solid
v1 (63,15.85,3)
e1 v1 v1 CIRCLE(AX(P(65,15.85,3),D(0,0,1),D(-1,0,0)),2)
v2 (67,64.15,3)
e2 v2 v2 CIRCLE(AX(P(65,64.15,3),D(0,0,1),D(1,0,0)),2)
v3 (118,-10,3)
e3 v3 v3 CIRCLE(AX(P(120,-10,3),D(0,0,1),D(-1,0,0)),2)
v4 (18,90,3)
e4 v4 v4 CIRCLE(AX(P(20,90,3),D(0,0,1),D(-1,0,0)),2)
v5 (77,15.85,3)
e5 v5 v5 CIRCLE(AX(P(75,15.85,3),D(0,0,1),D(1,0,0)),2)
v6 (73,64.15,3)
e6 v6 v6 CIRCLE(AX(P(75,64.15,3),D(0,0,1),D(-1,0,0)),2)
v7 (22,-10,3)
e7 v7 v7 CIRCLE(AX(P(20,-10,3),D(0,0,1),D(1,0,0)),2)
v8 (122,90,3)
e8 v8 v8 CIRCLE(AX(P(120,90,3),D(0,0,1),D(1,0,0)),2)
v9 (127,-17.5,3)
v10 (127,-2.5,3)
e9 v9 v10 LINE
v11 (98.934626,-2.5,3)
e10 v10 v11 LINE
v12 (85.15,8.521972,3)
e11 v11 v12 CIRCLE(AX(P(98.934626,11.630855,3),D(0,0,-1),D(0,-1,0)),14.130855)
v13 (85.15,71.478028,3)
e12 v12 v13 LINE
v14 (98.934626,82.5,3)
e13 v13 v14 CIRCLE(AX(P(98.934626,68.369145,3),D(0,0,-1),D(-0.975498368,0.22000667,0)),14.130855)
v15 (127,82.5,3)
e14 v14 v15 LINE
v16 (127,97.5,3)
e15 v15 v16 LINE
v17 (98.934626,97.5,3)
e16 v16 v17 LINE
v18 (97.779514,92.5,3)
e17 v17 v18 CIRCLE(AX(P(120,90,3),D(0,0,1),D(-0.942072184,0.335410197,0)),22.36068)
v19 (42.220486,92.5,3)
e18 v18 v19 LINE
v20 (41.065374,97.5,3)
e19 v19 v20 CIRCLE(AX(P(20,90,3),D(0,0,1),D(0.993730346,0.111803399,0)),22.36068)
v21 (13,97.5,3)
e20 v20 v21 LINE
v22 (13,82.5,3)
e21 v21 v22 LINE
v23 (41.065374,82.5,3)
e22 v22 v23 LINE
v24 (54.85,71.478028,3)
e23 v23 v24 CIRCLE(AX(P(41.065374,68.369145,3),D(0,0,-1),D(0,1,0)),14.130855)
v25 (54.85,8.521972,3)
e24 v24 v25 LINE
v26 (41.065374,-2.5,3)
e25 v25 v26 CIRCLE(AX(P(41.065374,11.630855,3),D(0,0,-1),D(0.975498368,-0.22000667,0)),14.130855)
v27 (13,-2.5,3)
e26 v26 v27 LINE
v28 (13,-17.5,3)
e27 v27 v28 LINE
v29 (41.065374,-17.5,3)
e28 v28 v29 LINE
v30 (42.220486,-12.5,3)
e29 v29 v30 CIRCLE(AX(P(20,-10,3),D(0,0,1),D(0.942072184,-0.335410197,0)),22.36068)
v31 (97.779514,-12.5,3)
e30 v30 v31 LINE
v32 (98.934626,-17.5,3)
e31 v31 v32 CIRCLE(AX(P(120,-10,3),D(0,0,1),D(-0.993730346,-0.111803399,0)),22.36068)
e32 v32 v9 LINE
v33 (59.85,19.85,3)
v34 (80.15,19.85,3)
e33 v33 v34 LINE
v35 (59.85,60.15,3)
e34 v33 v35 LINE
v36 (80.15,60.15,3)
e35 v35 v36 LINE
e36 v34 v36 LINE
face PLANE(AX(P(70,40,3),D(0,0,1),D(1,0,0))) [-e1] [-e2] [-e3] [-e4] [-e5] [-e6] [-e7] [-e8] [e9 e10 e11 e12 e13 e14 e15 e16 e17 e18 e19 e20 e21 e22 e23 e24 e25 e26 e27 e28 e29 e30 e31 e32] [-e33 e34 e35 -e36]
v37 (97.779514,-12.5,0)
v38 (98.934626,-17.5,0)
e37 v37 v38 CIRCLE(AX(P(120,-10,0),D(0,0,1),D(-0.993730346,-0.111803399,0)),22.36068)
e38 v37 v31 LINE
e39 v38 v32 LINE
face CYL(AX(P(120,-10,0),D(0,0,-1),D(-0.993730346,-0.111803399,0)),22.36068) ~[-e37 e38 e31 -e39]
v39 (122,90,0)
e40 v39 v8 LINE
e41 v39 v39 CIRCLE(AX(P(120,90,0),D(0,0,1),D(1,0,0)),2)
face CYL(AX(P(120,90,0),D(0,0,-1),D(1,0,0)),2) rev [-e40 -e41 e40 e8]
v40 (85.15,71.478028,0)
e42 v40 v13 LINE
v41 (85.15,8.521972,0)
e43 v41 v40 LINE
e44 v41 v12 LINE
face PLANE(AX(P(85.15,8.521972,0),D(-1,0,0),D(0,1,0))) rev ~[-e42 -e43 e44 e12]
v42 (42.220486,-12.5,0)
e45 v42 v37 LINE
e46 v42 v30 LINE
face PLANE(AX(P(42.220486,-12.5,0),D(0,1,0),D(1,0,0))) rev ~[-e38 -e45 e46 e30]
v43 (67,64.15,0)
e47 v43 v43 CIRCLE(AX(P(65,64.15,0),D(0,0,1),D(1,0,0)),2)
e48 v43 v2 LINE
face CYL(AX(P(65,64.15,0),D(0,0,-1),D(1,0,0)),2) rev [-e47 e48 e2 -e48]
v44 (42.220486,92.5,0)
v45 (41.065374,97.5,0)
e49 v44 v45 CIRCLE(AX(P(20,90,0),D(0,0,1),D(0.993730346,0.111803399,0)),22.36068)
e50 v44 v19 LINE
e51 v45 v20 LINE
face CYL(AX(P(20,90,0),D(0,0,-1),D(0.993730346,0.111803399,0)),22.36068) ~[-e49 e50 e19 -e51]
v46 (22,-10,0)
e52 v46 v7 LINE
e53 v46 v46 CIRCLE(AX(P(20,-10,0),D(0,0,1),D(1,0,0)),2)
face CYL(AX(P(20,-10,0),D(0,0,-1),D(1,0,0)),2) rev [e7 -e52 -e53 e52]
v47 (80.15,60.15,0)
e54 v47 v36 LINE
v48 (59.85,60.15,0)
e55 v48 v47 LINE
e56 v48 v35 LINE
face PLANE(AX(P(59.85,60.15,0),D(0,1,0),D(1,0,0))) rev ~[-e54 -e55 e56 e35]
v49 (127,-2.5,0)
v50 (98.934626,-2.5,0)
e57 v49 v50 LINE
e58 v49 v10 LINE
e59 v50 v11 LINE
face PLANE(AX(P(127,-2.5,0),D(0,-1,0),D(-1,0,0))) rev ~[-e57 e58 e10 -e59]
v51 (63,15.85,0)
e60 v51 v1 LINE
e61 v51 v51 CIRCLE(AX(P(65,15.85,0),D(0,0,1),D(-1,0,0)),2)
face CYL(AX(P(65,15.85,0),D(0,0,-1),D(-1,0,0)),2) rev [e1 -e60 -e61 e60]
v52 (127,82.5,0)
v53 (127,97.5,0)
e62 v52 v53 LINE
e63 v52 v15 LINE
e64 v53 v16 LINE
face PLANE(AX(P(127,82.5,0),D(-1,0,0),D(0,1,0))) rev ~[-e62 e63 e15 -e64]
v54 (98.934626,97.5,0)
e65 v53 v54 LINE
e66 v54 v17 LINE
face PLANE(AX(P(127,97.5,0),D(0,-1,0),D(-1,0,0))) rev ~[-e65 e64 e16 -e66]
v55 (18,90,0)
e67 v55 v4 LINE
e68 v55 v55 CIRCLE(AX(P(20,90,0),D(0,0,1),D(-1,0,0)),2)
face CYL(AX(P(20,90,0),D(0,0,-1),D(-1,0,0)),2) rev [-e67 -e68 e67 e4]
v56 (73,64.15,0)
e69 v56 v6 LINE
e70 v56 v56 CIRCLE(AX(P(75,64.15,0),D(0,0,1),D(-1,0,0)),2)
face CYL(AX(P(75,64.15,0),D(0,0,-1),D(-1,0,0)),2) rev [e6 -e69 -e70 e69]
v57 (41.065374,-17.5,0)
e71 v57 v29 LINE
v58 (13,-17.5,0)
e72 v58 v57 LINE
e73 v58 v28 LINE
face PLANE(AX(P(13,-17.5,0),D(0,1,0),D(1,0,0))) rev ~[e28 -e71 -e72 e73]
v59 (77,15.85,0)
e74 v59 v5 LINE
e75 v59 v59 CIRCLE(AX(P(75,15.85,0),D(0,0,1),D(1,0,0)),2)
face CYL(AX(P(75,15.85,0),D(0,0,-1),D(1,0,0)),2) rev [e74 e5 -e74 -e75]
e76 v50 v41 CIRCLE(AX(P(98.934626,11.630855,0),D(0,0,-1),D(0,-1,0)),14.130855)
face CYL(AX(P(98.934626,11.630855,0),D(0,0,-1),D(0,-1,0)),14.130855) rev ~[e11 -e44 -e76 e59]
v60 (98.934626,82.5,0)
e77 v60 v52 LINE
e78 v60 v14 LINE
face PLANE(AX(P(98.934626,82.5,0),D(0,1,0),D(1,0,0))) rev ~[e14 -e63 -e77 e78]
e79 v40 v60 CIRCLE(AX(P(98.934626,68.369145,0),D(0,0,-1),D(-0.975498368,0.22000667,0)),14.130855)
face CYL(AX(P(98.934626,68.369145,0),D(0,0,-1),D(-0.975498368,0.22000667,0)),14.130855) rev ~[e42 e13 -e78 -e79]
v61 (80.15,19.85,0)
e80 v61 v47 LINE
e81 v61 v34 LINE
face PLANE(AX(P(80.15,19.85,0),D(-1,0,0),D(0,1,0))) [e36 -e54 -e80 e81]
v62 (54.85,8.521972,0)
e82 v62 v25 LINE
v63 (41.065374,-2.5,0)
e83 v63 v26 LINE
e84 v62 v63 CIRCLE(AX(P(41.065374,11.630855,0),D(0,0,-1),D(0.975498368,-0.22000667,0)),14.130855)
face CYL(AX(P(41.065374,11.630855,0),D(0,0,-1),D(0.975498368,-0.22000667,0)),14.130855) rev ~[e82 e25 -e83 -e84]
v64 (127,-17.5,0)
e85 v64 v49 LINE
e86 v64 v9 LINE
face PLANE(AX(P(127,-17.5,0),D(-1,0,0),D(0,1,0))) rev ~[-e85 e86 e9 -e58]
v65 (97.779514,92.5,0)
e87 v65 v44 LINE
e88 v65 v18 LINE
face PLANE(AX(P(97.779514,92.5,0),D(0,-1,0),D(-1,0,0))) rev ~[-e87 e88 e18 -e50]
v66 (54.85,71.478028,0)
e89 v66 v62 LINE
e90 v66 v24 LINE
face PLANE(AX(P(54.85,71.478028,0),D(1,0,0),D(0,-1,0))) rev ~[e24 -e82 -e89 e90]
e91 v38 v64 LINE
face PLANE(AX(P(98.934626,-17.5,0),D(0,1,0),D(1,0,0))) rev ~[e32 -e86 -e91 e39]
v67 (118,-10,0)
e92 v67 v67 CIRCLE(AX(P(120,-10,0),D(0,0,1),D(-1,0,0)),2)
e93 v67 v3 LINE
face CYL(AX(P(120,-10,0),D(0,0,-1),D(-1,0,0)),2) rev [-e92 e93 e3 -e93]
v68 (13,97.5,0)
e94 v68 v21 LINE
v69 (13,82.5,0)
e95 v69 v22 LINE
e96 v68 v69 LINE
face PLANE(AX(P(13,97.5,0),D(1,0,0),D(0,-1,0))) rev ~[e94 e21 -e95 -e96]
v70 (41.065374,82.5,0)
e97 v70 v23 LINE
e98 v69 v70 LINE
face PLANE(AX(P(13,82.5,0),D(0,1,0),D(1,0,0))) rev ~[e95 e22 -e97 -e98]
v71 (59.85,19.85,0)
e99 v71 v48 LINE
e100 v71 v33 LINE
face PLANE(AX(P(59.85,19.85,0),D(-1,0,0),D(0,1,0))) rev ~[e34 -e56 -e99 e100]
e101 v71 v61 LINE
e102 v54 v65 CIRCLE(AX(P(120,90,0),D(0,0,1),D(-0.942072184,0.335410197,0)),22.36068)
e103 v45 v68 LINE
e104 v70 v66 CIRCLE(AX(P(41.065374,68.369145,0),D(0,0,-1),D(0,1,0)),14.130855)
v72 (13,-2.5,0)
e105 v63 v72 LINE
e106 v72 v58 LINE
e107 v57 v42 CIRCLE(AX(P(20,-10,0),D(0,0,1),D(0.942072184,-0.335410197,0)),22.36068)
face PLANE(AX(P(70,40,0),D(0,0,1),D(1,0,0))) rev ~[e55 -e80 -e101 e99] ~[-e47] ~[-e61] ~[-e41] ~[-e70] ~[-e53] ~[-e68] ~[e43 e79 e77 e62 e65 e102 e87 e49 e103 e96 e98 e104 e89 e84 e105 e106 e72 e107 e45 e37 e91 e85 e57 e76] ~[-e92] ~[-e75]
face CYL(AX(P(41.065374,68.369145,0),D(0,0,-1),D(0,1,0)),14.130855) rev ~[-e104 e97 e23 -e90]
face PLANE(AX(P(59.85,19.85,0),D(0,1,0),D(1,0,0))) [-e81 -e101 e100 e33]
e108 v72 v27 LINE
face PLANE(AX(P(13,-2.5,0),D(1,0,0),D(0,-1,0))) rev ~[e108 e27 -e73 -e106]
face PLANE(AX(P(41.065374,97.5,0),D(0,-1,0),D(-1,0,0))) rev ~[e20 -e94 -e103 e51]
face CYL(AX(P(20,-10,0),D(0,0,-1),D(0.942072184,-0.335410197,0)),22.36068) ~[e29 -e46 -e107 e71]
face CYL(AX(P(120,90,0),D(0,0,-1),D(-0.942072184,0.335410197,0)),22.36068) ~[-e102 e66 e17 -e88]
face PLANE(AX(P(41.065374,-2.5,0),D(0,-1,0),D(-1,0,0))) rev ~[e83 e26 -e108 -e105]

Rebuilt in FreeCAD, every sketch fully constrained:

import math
import FreeCAD as App
import Part
import Sketcher
Q = App.Units.Quantity

doc = App.newDocument("Part")
body = doc.addObject("PartDesign::Body", "Body")

# Sketch on XY plane
sketch1 = body.newObject("Sketcher::SketchObject", "Sketch")
sketch1.AttachmentSupport = (doc.getObject("XY_Plane"), [""])
sketch1.MapMode = "FlatFace"
sketch1.addGeometry(Part.LineSegment(App.Vector(54.85, 71.478028, 0), App.Vector(54.85, 8.521972, 0)), False)
sketch1.addGeometry(Part.ArcOfCircle(Part.Circle(App.Vector(41.065374, 11.630855, 0), App.Vector(0, 0, 1), 14.130855), math.radians(-90), math.radians(-12.709425)), False)
sketch1.addGeometry(Part.LineSegment(App.Vector(41.065374, -2.5, 0), App.Vector(13, -2.5, 0)), False)
sketch1.addGeometry(Part.LineSegment(App.Vector(13, -2.5, 0), App.Vector(13, -17.5, 0)), False)
sketch1.addGeometry(Part.LineSegment(App.Vector(13, -17.5, 0), App.Vector(41.065374, -17.5, 0)), False)
sketch1.addGeometry(Part.ArcOfCircle(Part.Circle(App.Vector(20, -10, 0), App.Vector(0, 0, 1), 22.36068), math.radians(-19.597484), math.radians(-6.419284)), False)
sketch1.addGeometry(Part.LineSegment(App.Vector(42.220486, -12.5, 0), App.Vector(97.779514, -12.5, 0)), False)
sketch1.addGeometry(Part.ArcOfCircle(Part.Circle(App.Vector(120, -10, 0), App.Vector(0, 0, 1), 22.36068), math.radians(-173.580716), math.radians(-160.402516)), False)
sketch1.addGeometry(Part.LineSegment(App.Vector(98.934626, -17.5, 0), App.Vector(127, -17.5, 0)), False)
sketch1.addGeometry(Part.LineSegment(App.Vector(127, -17.5, 0), App.Vector(127, -2.5, 0)), False)
sketch1.addGeometry(Part.LineSegment(App.Vector(127, -2.5, 0), App.Vector(98.934626, -2.5, 0)), False)
sketch1.addGeometry(Part.ArcOfCircle(Part.Circle(App.Vector(98.934626, 11.630855, 0), App.Vector(0, 0, 1), 14.130855), math.radians(-167.290575), math.radians(-90)), False)
sketch1.addGeometry(Part.LineSegment(App.Vector(85.15, 8.521972, 0), App.Vector(85.15, 71.478028, 0)), False)
sketch1.addGeometry(Part.ArcOfCircle(Part.Circle(App.Vector(98.934626, 68.369145, 0), App.Vector(0, 0, 1), 14.130855), math.radians(90), math.radians(167.290575)), False)
sketch1.addGeometry(Part.LineSegment(App.Vector(98.934626, 82.5, 0), App.Vector(127, 82.5, 0)), False)
sketch1.addGeometry(Part.LineSegment(App.Vector(127, 82.5, 0), App.Vector(127, 97.5, 0)), False)
sketch1.addGeometry(Part.LineSegment(App.Vector(127, 97.5, 0), App.Vector(98.934626, 97.5, 0)), False)
sketch1.addGeometry(Part.ArcOfCircle(Part.Circle(App.Vector(120, 90, 0), App.Vector(0, 0, 1), 22.36068), math.radians(160.402516), math.radians(173.580716)), False)
sketch1.addGeometry(Part.LineSegment(App.Vector(97.779514, 92.5, 0), App.Vector(42.220486, 92.5, 0)), False)
sketch1.addGeometry(Part.ArcOfCircle(Part.Circle(App.Vector(20, 90, 0), App.Vector(0, 0, 1), 22.36068), math.radians(6.419284), math.radians(19.597484)), False)
sketch1.addGeometry(Part.LineSegment(App.Vector(41.065374, 97.5, 0), App.Vector(13, 97.5, 0)), False)
sketch1.addGeometry(Part.LineSegment(App.Vector(13, 97.5, 0), App.Vector(13, 82.5, 0)), False)
sketch1.addGeometry(Part.LineSegment(App.Vector(13, 82.5, 0), App.Vector(41.065374, 82.5, 0)), False)
sketch1.addGeometry(Part.ArcOfCircle(Part.Circle(App.Vector(41.065374, 68.369145, 0), App.Vector(0, 0, 1), 14.130855), math.radians(12.709425), math.radians(90)), False)
sketch1.addGeometry(Part.Circle(App.Vector(20, -10, 0), App.Vector(0, 0, 1), 2), False)
sketch1.addGeometry(Part.Circle(App.Vector(65, 15.85, 0), App.Vector(0, 0, 1), 2), False)
sketch1.addGeometry(Part.Circle(App.Vector(120, -10, 0), App.Vector(0, 0, 1), 2), False)
sketch1.addGeometry(Part.Circle(App.Vector(75, 15.85, 0), App.Vector(0, 0, 1), 2), False)
sketch1.addGeometry(Part.Circle(App.Vector(65, 64.15, 0), App.Vector(0, 0, 1), 2), False)
sketch1.addGeometry(Part.Circle(App.Vector(20, 90, 0), App.Vector(0, 0, 1), 2), False)
sketch1.addGeometry(Part.LineSegment(App.Vector(80.15, 19.85, 0), App.Vector(59.85, 19.85, 0)), False)
sketch1.addGeometry(Part.LineSegment(App.Vector(59.85, 19.85, 0), App.Vector(59.85, 60.15, 0)), False)
sketch1.addGeometry(Part.LineSegment(App.Vector(59.85, 60.15, 0), App.Vector(80.15, 60.15, 0)), False)
sketch1.addGeometry(Part.LineSegment(App.Vector(80.15, 60.15, 0), App.Vector(80.15, 19.85, 0)), False)
sketch1.addGeometry(Part.Circle(App.Vector(75, 64.15, 0), App.Vector(0, 0, 1), 2), False)
sketch1.addGeometry(Part.Circle(App.Vector(120, 90, 0), App.Vector(0, 0, 1), 2), False)
sketch1.addConstraint(Sketcher.Constraint("Coincident", 0, 2, 1, 2))
sketch1.addConstraint(Sketcher.Constraint("Tangent", 1, 1, 2, 1))
sketch1.addConstraint(Sketcher.Constraint("Coincident", 2, 2, 3, 1))
sketch1.addConstraint(Sketcher.Constraint("Coincident", 3, 2, 4, 1))
sketch1.addConstraint(Sketcher.Constraint("Coincident", 4, 2, 5, 1))
sketch1.addConstraint(Sketcher.Constraint("Coincident", 5, 2, 6, 1))
sketch1.addConstraint(Sketcher.Constraint("Coincident", 6, 2, 7, 1))
sketch1.addConstraint(Sketcher.Constraint("Coincident", 7, 2, 8, 1))
sketch1.addConstraint(Sketcher.Constraint("Coincident", 8, 2, 9, 1))
sketch1.addConstraint(Sketcher.Constraint("Coincident", 9, 2, 10, 1))
sketch1.addConstraint(Sketcher.Constraint("Tangent", 10, 2, 11, 2))
sketch1.addConstraint(Sketcher.Constraint("Coincident", 11, 1, 12, 1))
sketch1.addConstraint(Sketcher.Constraint("Coincident", 12, 2, 13, 2))
sketch1.addConstraint(Sketcher.Constraint("Tangent", 13, 1, 14, 1))
sketch1.addConstraint(Sketcher.Constraint("Coincident", 14, 2, 15, 1))
sketch1.addConstraint(Sketcher.Constraint("Coincident", 15, 2, 16, 1))
sketch1.addConstraint(Sketcher.Constraint("Coincident", 16, 2, 17, 1))
sketch1.addConstraint(Sketcher.Constraint("Coincident", 17, 2, 18, 1))
sketch1.addConstraint(Sketcher.Constraint("Coincident", 18, 2, 19, 1))
sketch1.addConstraint(Sketcher.Constraint("Coincident", 19, 2, 20, 1))
sketch1.addConstraint(Sketcher.Constraint("Coincident", 20, 2, 21, 1))
sketch1.addConstraint(Sketcher.Constraint("Coincident", 21, 2, 22, 1))
sketch1.addConstraint(Sketcher.Constraint("Tangent", 22, 2, 23, 2))
sketch1.addConstraint(Sketcher.Constraint("Coincident", 23, 1, 0, 1))
sketch1.addConstraint(Sketcher.Constraint("Coincident", 30, 2, 31, 1))
sketch1.addConstraint(Sketcher.Constraint("Coincident", 31, 2, 32, 1))
sketch1.addConstraint(Sketcher.Constraint("Coincident", 32, 2, 33, 1))
sketch1.addConstraint(Sketcher.Constraint("Coincident", 33, 2, 30, 1))
sketch1.addConstraint(Sketcher.Constraint("Vertical", 0))
sketch1.addConstraint(Sketcher.Constraint("Horizontal", 2))
sketch1.addConstraint(Sketcher.Constraint("Vertical", 3))
sketch1.addConstraint(Sketcher.Constraint("Horizontal", 4))
sketch1.addConstraint(Sketcher.Constraint("Horizontal", 6))
sketch1.addConstraint(Sketcher.Constraint("Horizontal", 8))
sketch1.addConstraint(Sketcher.Constraint("Vertical", 9))
sketch1.addConstraint(Sketcher.Constraint("Horizontal", 10))
sketch1.addConstraint(Sketcher.Constraint("Vertical", 12))
sketch1.addConstraint(Sketcher.Constraint("Horizontal", 14))
sketch1.addConstraint(Sketcher.Constraint("Vertical", 15))
sketch1.addConstraint(Sketcher.Constraint("Horizontal", 16))
sketch1.addConstraint(Sketcher.Constraint("Horizontal", 18))
sketch1.addConstraint(Sketcher.Constraint("Horizontal", 20))
sketch1.addConstraint(Sketcher.Constraint("Vertical", 21))
sketch1.addConstraint(Sketcher.Constraint("Horizontal", 22))
sketch1.addConstraint(Sketcher.Constraint("Horizontal", 30))
sketch1.addConstraint(Sketcher.Constraint("Vertical", 31))
sketch1.addConstraint(Sketcher.Constraint("Horizontal", 32))
sketch1.addConstraint(Sketcher.Constraint("Vertical", 33))
sketch1.addConstraint(Sketcher.Constraint("Coincident", 24, 3, 5, 3))
sketch1.addConstraint(Sketcher.Constraint("Coincident", 26, 3, 7, 3))
sketch1.addConstraint(Sketcher.Constraint("Coincident", 29, 3, 19, 3))
sketch1.addConstraint(Sketcher.Constraint("Coincident", 35, 3, 17, 3))
sketch1.addConstraint(Sketcher.Constraint("Equal", 5, 7))
sketch1.addConstraint(Sketcher.Constraint("Equal", 1, 11))
sketch1.addConstraint(Sketcher.Constraint("Equal", 11, 13))
sketch1.addConstraint(Sketcher.Constraint("Equal", 7, 17))
sketch1.addConstraint(Sketcher.Constraint("Equal", 17, 19))
sketch1.addConstraint(Sketcher.Constraint("Equal", 13, 23))
sketch1.addConstraint(Sketcher.Constraint("Equal", 24, 25))
sketch1.addConstraint(Sketcher.Constraint("Equal", 25, 26))
sketch1.addConstraint(Sketcher.Constraint("Equal", 26, 27))
sketch1.addConstraint(Sketcher.Constraint("Equal", 27, 28))
sketch1.addConstraint(Sketcher.Constraint("Equal", 28, 29))
sketch1.addConstraint(Sketcher.Constraint("Equal", 29, 34))
sketch1.addConstraint(Sketcher.Constraint("Equal", 34, 35))
sketch1.addConstraint(Sketcher.Constraint("Horizontal", 5, 3, 7, 3))
sketch1.addConstraint(Sketcher.Constraint("Horizontal", 1, 3, 11, 3))
sketch1.addConstraint(Sketcher.Constraint("Horizontal", 17, 3, 19, 3))
sketch1.addConstraint(Sketcher.Constraint("Horizontal", 13, 3, 23, 3))
sketch1.addConstraint(Sketcher.Constraint("Horizontal", 25, 3, 27, 3))
sketch1.addConstraint(Sketcher.Constraint("Horizontal", 28, 3, 34, 3))
sketch1.addConstraint(Sketcher.Constraint("Horizontal", 4, 2, 7, 2))
sketch1.addConstraint(Sketcher.Constraint("Horizontal", 0, 2, 11, 1))
sketch1.addConstraint(Sketcher.Constraint("Horizontal", 16, 2, 19, 2))
sketch1.addConstraint(Sketcher.Constraint("Horizontal", 12, 2, 23, 1))
sketch1.addConstraint(Sketcher.Constraint("Vertical", 11, 3, 13, 3))
sketch1.addConstraint(Sketcher.Constraint("Vertical", 7, 3, 17, 3))
sketch1.addConstraint(Sketcher.Constraint("Vertical", 5, 3, 19, 3))
sketch1.addConstraint(Sketcher.Constraint("Vertical", 25, 3, 28, 3))
sketch1.addConstraint(Sketcher.Constraint("Vertical", 27, 3, 34, 3))
sketch1.addConstraint(Sketcher.Constraint("Vertical", 1, 1, 4, 2))
sketch1.addConstraint(Sketcher.Constraint("Vertical", 13, 3, 7, 2))
sketch1.addConstraint(Sketcher.Constraint("Vertical", 9, 2, 14, 2))
sketch1.addConstraint(Sketcher.Constraint("Vertical", 13, 1, 16, 2))
sketch1.addConstraint(Sketcher.Constraint("Vertical", 6, 2, 17, 2))
sketch1.addConstraint(Sketcher.Constraint("Vertical", 3, 2, 20, 2))
sketch1.addConstraint(Sketcher.Constraint("Equal", 4, 8))
sketch1.addConstraint(Sketcher.Constraint("Equal", 9, 15))
sketch1.addConstraint(Sketcher.Constraint("Diameter", 24, Q("4 mm")))
sketch1.addConstraint(Sketcher.Constraint("DistanceY", 3, 2, 3, 1, Q("15 mm")))
sketch1.addConstraint(Sketcher.Constraint("DistanceX", 30, 2, 30, 1, Q("20.3 mm")))
sketch1.addConstraint(Sketcher.Constraint("DistanceY", 31, 1, 31, 2, Q("40.3 mm")))
sketch1.addConstraint(Sketcher.Constraint("DistanceX", -1, 1, 5, 3, Q("20 mm")))
sketch1.addConstraint(Sketcher.Constraint("DistanceY", 5, 3, -1, 1, Q("10 mm")))
sketch1.addConstraint(Sketcher.Constraint("DistanceX", -1, 1, 7, 3, Q("120 mm")))
sketch1.addConstraint(Sketcher.Constraint("DistanceY", -1, 1, 17, 3, Q("90 mm")))
sketch1.addConstraint(Sketcher.Constraint("DistanceX", -1, 1, 25, 3, Q("65 mm")))
sketch1.addConstraint(Sketcher.Constraint("DistanceX", -1, 1, 27, 3, Q("75 mm")))
sketch1.addConstraint(Sketcher.Constraint("DistanceX", -1, 1, 2, 2, Q("13 mm")))
sketch1.addConstraint(Sketcher.Constraint("DistanceY", 4, 2, 5, 2, Q("5 mm")))
sketch1.addConstraint(Sketcher.Constraint("DistanceY", 25, 3, 30, 2, Q("4 mm")))
sketch1.addConstraint(Sketcher.Constraint("DistanceX", 0, 2, 30, 2, Q("5 mm")))
sketch1.addConstraint(Sketcher.Constraint("DistanceY", 31, 2, 28, 3, Q("4 mm")))
sketch1.addConstraint(Sketcher.Constraint("DistanceX", 32, 2, 12, 2, Q("5 mm")))
sketch1.addConstraint(Sketcher.Constraint("DistanceY", 1, 1, -1, 1, Q("2.5 mm")))
sketch1.addConstraint(Sketcher.Constraint("DistanceY", -1, 1, 25, 3, Q("15.85 mm")))
sketch1.addConstraint(Sketcher.Constraint("Radius", 5, Q("22.36068 mm")))
sketch1.addConstraint(Sketcher.Constraint("Radius", 1, Q("14.130855 mm")))
pad1 = body.newObject("PartDesign::Pad", "Pad")
pad1.Profile = sketch1
pad1.Length = 3

doc.recompute()
